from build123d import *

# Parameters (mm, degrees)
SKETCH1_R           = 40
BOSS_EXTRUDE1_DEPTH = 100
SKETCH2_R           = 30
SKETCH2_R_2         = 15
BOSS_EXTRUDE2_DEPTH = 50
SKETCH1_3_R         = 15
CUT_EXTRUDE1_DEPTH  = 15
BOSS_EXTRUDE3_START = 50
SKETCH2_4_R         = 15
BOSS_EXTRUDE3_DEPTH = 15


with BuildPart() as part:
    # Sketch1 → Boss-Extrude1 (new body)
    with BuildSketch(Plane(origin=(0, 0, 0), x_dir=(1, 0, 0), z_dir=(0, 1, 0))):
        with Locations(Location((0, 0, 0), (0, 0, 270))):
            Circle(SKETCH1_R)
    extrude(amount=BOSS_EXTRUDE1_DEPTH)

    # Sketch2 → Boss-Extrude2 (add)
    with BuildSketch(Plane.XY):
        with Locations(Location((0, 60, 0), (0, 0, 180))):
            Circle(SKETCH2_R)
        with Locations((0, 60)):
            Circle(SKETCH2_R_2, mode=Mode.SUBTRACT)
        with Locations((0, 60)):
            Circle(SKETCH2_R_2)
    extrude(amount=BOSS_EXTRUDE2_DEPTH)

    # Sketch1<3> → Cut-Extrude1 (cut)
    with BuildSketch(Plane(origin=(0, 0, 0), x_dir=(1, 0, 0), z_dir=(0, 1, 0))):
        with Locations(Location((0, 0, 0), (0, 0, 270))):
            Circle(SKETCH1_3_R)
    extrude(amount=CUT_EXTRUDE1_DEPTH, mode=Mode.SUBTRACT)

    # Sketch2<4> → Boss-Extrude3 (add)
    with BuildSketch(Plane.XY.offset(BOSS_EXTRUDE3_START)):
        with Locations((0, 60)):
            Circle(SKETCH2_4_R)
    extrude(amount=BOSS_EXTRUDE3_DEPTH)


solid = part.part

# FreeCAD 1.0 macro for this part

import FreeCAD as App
import Part
import Sketcher

V = App.Vector

doc = App.newDocument("Part")
body = doc.addObject("PartDesign::Body", "Body")

# Sketch on XZ plane
sketch1 = doc.addObject("Sketcher::SketchObject", "Sketch")
body.addObject(sketch1)
sketch1.AttachmentSupport = (doc.XZ_Plane, [""])
sketch1.MapMode = "FlatFace"
sketch1.addGeometry(Part.Circle(V(0, 0, 0), V(0, 0, 1), 40), False)
sketch1.addConstraint([
    Sketcher.Constraint("Coincident", 0, 3, -1, 1),
    Sketcher.Constraint("Diameter", 0, 80.0),
])
pad1 = doc.addObject("PartDesign::Pad", "Pad")
body.addObject(pad1)
pad1.Profile = sketch1
pad1.Length = 100
pad1.Reversed = True

# Sketch on XY plane
sketch2 = doc.addObject("Sketcher::SketchObject", "Sketch001")
body.addObject(sketch2)
sketch2.AttachmentSupport = (doc.XY_Plane, [""])
sketch2.MapMode = "FlatFace"
sketch2.addGeometry(Part.Circle(V(0, 60, 0), V(0, 0, 1), 30), False)
sketch2.addConstraint([
    Sketcher.Constraint("PointOnObject", 0, 3, -2),
    Sketcher.Constraint("Diameter", 0, 60.0),
    Sketcher.Constraint("DistanceY", -1, 1, 0, 3, 60.0),
])
pad2 = doc.addObject("PartDesign::Pad", "Pad001")
body.addObject(pad2)
pad2.Profile = sketch2
pad2.Length = 50

# Sketch on XZ plane
sketch3 = doc.addObject("Sketcher::SketchObject", "Sketch002")
body.addObject(sketch3)
sketch3.AttachmentSupport = (doc.XZ_Plane, [""])
sketch3.MapMode = "FlatFace"
sketch3.addGeometry(Part.Circle(V(0, 0, 0), V(0, 0, 1), 15), False)
sketch3.addConstraint([
    Sketcher.Constraint("Coincident", 0, 3, -1, 1),
    Sketcher.Constraint("Diameter", 0, 30.0),
])
pocket1 = doc.addObject("PartDesign::Pocket", "Pocket")
body.addObject(pocket1)
pocket1.Profile = sketch3
pocket1.Length = 15

# Sketch on XY plane
sketch4 = doc.addObject("Sketcher::SketchObject", "Sketch003")
body.addObject(sketch4)
sketch4.AttachmentSupport = (doc.XY_Plane, [""])
sketch4.MapMode = "FlatFace"
sketch4.AttachmentOffset = App.Placement(V(0, 0, 50), App.Rotation())
sketch4.addGeometry(Part.Circle(V(0, 60, 0), V(0, 0, 1), 15), False)
sketch4.addConstraint([
    Sketcher.Constraint("PointOnObject", 0, 3, -2),
    Sketcher.Constraint("Diameter", 0, 30.0),
    Sketcher.Constraint("DistanceY", -1, 1, 0, 3, 60.0),
])
pad3 = doc.addObject("PartDesign::Pad", "Pad002")
body.addObject(pad3)
pad3.Profile = sketch4
pad3.Length = 15

doc.recompute()
